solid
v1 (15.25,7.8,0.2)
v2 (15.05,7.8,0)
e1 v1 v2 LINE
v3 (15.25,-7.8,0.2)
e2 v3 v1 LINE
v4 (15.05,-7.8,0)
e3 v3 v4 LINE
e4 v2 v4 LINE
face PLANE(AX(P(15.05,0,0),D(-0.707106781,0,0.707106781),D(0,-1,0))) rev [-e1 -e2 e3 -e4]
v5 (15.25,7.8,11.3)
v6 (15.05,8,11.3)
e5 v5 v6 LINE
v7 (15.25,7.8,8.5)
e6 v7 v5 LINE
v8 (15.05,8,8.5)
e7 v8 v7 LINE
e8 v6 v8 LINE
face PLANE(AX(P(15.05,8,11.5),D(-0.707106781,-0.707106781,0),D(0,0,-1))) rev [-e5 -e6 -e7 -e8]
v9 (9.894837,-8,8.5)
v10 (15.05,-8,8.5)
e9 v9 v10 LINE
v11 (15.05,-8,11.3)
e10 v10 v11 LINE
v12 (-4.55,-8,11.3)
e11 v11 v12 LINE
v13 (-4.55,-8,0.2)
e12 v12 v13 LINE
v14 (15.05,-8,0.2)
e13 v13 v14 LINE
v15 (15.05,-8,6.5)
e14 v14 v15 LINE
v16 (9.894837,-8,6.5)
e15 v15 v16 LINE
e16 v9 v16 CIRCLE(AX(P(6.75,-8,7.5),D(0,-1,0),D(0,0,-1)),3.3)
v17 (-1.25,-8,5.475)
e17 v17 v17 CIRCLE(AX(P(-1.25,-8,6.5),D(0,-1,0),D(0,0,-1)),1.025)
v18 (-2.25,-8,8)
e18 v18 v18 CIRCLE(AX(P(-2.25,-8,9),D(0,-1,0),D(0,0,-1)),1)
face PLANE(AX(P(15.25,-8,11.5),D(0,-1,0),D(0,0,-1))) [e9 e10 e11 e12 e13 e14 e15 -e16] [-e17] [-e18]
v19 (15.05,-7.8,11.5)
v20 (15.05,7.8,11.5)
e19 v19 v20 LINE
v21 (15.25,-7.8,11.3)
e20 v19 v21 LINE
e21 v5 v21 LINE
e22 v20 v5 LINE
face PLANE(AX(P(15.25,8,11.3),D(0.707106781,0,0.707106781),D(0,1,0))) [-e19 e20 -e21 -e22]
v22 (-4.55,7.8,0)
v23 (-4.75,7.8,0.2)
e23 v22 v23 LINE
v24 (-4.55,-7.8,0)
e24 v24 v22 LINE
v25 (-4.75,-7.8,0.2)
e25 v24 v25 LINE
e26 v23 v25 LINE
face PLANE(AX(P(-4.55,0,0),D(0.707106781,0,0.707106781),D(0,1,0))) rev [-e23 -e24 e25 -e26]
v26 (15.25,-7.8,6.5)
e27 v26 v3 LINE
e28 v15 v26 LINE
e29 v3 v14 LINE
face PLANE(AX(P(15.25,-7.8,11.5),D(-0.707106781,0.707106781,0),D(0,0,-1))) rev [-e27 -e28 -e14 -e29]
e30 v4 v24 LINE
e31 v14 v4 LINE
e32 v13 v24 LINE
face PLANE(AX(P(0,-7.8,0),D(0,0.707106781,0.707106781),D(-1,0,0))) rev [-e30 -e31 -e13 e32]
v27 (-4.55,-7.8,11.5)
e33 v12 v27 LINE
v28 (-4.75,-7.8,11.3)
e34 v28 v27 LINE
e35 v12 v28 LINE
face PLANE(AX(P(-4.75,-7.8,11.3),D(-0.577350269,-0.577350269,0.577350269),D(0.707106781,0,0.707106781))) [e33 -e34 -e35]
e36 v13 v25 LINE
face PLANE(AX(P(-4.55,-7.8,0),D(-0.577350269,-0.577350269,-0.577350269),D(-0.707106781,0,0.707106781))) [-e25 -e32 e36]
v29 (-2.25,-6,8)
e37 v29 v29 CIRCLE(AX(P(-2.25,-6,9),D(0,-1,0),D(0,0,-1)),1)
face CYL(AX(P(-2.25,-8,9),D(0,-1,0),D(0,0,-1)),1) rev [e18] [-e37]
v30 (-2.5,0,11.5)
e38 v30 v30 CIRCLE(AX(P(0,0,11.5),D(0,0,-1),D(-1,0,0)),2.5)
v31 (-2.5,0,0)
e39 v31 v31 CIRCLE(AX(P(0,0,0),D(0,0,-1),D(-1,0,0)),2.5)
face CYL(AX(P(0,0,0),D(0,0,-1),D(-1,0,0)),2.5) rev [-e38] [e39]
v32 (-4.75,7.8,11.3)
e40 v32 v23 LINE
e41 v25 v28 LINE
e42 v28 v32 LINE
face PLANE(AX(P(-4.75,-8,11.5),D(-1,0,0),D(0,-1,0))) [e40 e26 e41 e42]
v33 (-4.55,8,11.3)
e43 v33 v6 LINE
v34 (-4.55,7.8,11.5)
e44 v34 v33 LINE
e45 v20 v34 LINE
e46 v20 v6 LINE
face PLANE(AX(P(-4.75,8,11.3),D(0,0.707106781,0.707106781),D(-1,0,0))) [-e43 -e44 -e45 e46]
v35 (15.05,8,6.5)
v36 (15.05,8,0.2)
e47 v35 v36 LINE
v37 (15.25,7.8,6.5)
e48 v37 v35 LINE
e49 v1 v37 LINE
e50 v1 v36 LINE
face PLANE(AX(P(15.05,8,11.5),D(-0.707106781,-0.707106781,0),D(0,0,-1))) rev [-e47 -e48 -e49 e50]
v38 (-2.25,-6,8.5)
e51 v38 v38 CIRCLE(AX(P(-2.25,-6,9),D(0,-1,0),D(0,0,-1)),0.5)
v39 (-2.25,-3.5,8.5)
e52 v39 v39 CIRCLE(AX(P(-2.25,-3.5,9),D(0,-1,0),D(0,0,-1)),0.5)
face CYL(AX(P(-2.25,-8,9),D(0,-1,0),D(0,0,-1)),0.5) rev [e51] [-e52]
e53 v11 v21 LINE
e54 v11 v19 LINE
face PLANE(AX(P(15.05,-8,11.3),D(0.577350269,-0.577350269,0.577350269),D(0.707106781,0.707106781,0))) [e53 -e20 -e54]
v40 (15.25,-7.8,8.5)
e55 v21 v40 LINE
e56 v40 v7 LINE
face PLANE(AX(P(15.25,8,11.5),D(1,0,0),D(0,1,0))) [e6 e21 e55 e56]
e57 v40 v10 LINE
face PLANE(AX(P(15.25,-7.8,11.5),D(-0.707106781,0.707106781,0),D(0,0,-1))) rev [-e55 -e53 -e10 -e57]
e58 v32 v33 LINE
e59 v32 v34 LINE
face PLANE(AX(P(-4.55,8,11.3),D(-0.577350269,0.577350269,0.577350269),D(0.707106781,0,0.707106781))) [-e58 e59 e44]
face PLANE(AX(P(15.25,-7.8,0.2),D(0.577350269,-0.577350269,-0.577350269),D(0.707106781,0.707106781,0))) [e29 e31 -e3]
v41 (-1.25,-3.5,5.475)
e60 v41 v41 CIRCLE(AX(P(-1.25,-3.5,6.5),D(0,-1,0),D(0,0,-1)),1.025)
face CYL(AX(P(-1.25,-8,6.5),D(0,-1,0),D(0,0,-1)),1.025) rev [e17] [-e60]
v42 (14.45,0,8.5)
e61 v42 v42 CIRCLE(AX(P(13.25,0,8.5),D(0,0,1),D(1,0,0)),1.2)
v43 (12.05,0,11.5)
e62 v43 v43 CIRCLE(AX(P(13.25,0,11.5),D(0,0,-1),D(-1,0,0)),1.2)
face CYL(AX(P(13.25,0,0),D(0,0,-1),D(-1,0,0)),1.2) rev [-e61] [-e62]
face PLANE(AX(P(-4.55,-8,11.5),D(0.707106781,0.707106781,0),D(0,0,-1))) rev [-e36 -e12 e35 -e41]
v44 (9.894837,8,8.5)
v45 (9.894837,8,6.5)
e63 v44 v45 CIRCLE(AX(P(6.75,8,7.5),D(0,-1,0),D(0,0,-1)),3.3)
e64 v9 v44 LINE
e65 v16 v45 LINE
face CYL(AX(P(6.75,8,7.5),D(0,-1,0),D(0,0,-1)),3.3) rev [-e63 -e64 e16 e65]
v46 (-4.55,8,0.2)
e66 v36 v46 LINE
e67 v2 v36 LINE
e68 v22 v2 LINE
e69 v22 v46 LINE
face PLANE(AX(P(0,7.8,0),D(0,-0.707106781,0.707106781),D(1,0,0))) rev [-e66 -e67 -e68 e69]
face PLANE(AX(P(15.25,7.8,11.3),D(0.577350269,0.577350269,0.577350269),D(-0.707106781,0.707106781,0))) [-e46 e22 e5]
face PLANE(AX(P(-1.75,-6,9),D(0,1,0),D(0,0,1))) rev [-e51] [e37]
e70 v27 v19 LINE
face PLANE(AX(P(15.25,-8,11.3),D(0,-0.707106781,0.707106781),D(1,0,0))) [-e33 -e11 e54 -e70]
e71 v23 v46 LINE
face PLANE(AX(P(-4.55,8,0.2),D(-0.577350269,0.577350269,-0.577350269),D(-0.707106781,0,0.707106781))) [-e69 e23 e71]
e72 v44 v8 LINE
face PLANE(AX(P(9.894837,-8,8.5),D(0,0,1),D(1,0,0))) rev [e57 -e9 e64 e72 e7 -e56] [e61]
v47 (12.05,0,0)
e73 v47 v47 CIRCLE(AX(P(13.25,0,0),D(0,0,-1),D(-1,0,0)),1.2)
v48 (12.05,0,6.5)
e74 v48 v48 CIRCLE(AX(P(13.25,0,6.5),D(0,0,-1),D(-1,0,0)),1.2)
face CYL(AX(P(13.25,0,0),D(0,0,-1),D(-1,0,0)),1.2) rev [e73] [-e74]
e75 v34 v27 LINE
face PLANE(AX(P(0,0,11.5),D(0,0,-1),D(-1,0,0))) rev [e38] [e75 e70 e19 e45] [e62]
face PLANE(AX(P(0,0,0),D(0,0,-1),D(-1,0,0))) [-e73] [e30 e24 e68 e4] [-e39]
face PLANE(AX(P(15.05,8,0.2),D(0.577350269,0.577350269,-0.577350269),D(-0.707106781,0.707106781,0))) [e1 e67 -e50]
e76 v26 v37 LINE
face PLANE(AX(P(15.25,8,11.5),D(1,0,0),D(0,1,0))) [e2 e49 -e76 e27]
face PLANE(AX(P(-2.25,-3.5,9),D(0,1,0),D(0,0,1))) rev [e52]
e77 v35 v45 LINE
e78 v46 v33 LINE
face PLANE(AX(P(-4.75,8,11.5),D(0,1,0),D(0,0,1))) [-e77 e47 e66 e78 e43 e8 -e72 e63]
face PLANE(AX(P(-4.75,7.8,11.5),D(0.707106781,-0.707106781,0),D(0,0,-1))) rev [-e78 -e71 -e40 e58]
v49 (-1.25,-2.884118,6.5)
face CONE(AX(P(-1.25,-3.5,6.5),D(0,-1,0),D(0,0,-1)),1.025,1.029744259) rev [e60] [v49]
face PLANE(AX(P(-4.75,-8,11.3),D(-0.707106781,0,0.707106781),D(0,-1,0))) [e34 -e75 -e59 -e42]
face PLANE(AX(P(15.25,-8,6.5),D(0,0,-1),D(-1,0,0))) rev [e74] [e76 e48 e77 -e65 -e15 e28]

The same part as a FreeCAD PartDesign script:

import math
import FreeCAD as App
import Part
import Sketcher

V = App.Vector
Q = App.Units.Quantity


def edges_at(feature, points):
    """Names of the edges that pass closest to the given points."""
    edges = feature.Shape.Edges
    near = lambda p: min(range(len(edges)), key=lambda i: edges[i].distToShape(Part.Vertex(*p))[0])
    return sorted({f"Edge{near(p) + 1}" for p in points})


def add_polygon(sketch, points):
    """Adds a closed chain of lines whose ends are joined by coincident constraints."""
    first, n = sketch.GeometryCount, len(points)
    for a, b in zip(points, points[1:] + points[:1]):
        sketch.addGeometry(Part.LineSegment(App.Vector(*a, 0), App.Vector(*b, 0)), False)
    for i in range(n):
        sketch.addConstraint(Sketcher.Constraint("Coincident", first + i, 2, first + (i + 1) % n, 1))

doc = App.newDocument("Part")
body = doc.addObject("PartDesign::Body", "Body")

# Sketch on XY plane
sketch1 = body.newObject("Sketcher::SketchObject", "Sketch")
sketch1.AttachmentSupport = (doc.getObject("XY_Plane"), [""])
sketch1.MapMode = "FlatFace"
add_polygon(sketch1, [(15, 8), (15, -8), (-5, -8), (-5, 8)])  # lines 0-3
sketch1.addConstraint([
    Sketcher.Constraint("Vertical", 0),
    Sketcher.Constraint("Horizontal", 1),
    Sketcher.Constraint("Vertical", 2),
    Sketcher.Constraint("Horizontal", 3),
    Sketcher.Constraint("DistanceX", 1, 2, 1, 1, Q("20 mm")),
    Sketcher.Constraint("DistanceY", 0, 2, 0, 1, Q("16 mm")),
    Sketcher.Constraint("DistanceY", 0, 2, -1, 1, Q("8 mm")),
    Sketcher.Constraint("DistanceX", -1, 1, 0, 2, Q("15.25 mm")),
])
pad1 = body.newObject("PartDesign::Pad", "Pad")
pad1.Profile = sketch1
pad1.Length = 11.5

# Sketch on XZ plane
sketch2 = body.newObject("Sketcher::SketchObject", "Sketch001")
sketch2.AttachmentSupport = (doc.getObject("XZ_Plane"), [""])
sketch2.MapMode = "FlatFace"
sketch2.AttachmentOffset = App.Placement(V(0, 0, -8), App.Rotation())
sketch2.addGeometry([
    Part.LineSegment(V(15.2, 8.5, 0), V(15.2, 6.5, 0)),
    Part.LineSegment(V(15.2, 6.5, 0), V(9.9, 6.5, 0)),
    Part.ArcOfCircle(Part.Circle(V(6.7, 7.5, 0), V(0, 0, 1), 3.3), math.radians(-18), math.radians(18)),
    Part.LineSegment(V(9.9, 8.5, 0), V(15.2, 8.5, 0)),
], False)
sketch2.addConstraint([
    Sketcher.Constraint("Coincident", 0, 2, 1, 1),
    Sketcher.Constraint("Coincident", 1, 2, 2, 1),
    Sketcher.Constraint("Coincident", 2, 2, 3, 1),
    Sketcher.Constraint("Coincident", 3, 2, 0, 1),
    Sketcher.Constraint("Vertical", 0),
    Sketcher.Constraint("Horizontal", 1),
    Sketcher.Constraint("Horizontal", 3),
    Sketcher.Constraint("Vertical", 1, 2, 2, 2),
    Sketcher.Constraint("Radius", 2, Q("3.3 mm")),
    Sketcher.Constraint("DistanceY", 0, 2, 0, 1, Q("2 mm")),
    Sketcher.Constraint("DistanceY", -1, 1, 2, 3, Q("7.5 mm")),
    Sketcher.Constraint("DistanceX", 2, 3, 0, 2, Q("8.5 mm")),
    Sketcher.Constraint("DistanceX", -1, 1, 2, 3, Q("6.75 mm")),
])
pocket1 = body.newObject("PartDesign::Pocket", "Pocket")
pocket1.Profile = sketch2
pocket1.Type = "ThroughAll"
pocket1.Reversed = True

# Sketch on XY plane
sketch3 = body.newObject("Sketcher::SketchObject", "Sketch002")
sketch3.AttachmentSupport = (doc.getObject("XY_Plane"), [""])
sketch3.MapMode = "FlatFace"
sketch3.AttachmentOffset = App.Placement(V(0, 0, 7.5), App.Rotation())
add_polygon(sketch3, [(6.8, 8), (6.8, -8), (10.1, -8), (10.1, 8)])  # lines 0-3
sketch3.addGeometry(Part.LineSegment(V(6.8, 8, 0), V(6.8, -8, 0)), True)  # axis
sketch3.addConstraint([
    Sketcher.Constraint("Vertical", 0),
    Sketcher.Constraint("Horizontal", 1),
    Sketcher.Constraint("Vertical", 2),
    Sketcher.Constraint("Horizontal", 3),
    Sketcher.Constraint("Vertical", 4),
    Sketcher.Constraint("Coincident", 4, 1, 3, 2),
    Sketcher.Constraint("Horizontal", 1, 2, 4, 2),
    Sketcher.Constraint("DistanceY", 0, 2, 0, 1, Q("16 mm")),
    Sketcher.Constraint("DistanceX", 1, 1, 1, 2, Q("3.3 mm")),
    Sketcher.Constraint("DistanceY", 0, 2, -1, 1, Q("8 mm")),
    Sketcher.Constraint("DistanceX", -1, 1, 0, 2, Q("6.75 mm")),
])
groove = body.newObject("PartDesign::Groove", "Groove")
groove.Profile = sketch3
groove.ReferenceAxis = (sketch3, ["Axis0"])
groove.Angle = 360

# Sketch on XY plane
sketch4 = body.newObject("Sketcher::SketchObject", "Sketch003")
sketch4.AttachmentSupport = (doc.getObject("XY_Plane"), [""])
sketch4.MapMode = "FlatFace"
sketch4.addGeometry(Part.Circle(V(0, 0, 0), V(0, 0, 1), 2.5), False)
sketch4.addConstraint([
    Sketcher.Constraint("Coincident", 0, 3, -1, 1),
    Sketcher.Constraint("Diameter", 0, Q("5 mm")),
])
doc.recompute()
hole = body.newObject("PartDesign::Hole", "Hole")
hole.Profile = sketch4
hole.ThreadType = "None"
hole.Diameter = 5
hole.DepthType = "ThroughAll"
hole.Reversed = True

# Sketch on YZ plane
sketch5 = body.newObject("Sketcher::SketchObject", "Sketch004")
sketch5.AttachmentSupport = (doc.getObject("YZ_Plane"), [""])
sketch5.MapMode = "FlatFace"
sketch5.AttachmentOffset = App.Placement(V(0, 0, 13.25), App.Rotation())
add_polygon(sketch5, [(0, 11.5), (0, 8.5), (0.8, 8.5), (0.8, 11.5)])  # lines 0-3
sketch5.addConstraint([
    Sketcher.Constraint("Vertical", 0),
    Sketcher.Constraint("Horizontal", 1),
    Sketcher.Constraint("Vertical", 2),
    Sketcher.Constraint("Horizontal", 3),
    Sketcher.Constraint("PointOnObject", 0, 2, -2),
    Sketcher.Constraint("DistanceY", 0, 2, 0, 1, Q("3 mm")),
    Sketcher.Constraint("DistanceX", 1, 1, 1, 2, Q("0.8 mm")),
    Sketcher.Constraint("DistanceY", -1, 1, 0, 2, Q("8.5 mm")),
])
groove2 = body.newObject("PartDesign::Groove", "Groove001")
groove2.Profile = sketch5
groove2.ReferenceAxis = (sketch5, ["V_Axis"])
groove2.Angle = 360

# Sketch on XY plane
sketch6 = body.newObject("Sketcher::SketchObject", "Sketch005")
sketch6.AttachmentSupport = (doc.getObject("XY_Plane"), [""])
sketch6.MapMode = "FlatFace"
sketch6.addGeometry(Part.Circle(V(13.2, 0, 0), V(0, 0, 1), 1.2), False)
sketch6.addConstraint([
    Sketcher.Constraint("PointOnObject", 0, 3, -1),
    Sketcher.Constraint("Diameter", 0, Q("2.4 mm")),
    Sketcher.Constraint("DistanceX", -1, 1, 0, 3, Q("13.25 mm")),
])
doc.recompute()
hole2 = body.newObject("PartDesign::Hole", "Hole001")
hole2.Profile = sketch6
hole2.ThreadType = "None"
hole2.Diameter = 2.4
hole2.DepthType = "Dimension"
hole2.Depth = 11.5
hole2.DrillPoint = "Flat"
hole2.Reversed = True

# Sketch on XZ plane
sketch7 = body.newObject("Sketcher::SketchObject", "Sketch006")
sketch7.AttachmentSupport = (doc.getObject("XZ_Plane"), [""])
sketch7.MapMode = "FlatFace"
sketch7.AttachmentOffset = App.Placement(V(0, 0, 8), App.Rotation())
sketch7.addGeometry(Part.Circle(V(-1.2, 6.5, 0), V(0, 0, 1), 1), False)
sketch7.addConstraint([
    Sketcher.Constraint("Diameter", 0, Q("2.05 mm")),
    Sketcher.Constraint("DistanceY", -1, 1, 0, 3, Q("6.5 mm")),
    Sketcher.Constraint("DistanceX", 0, 3, -1, 1, Q("1.25 mm")),
])
doc.recompute()
hole3 = body.newObject("PartDesign::Hole", "Hole002")
hole3.Profile = sketch7
hole3.ThreadType = "None"
hole3.Diameter = 2.05
hole3.DepthType = "Dimension"
hole3.Depth = 4.5
hole3.DrillPoint = "Angled"
hole3.DrillPointAngle = 118

# Sketch on XZ plane
sketch8 = body.newObject("Sketcher::SketchObject", "Sketch007")
sketch8.AttachmentSupport = (doc.getObject("XZ_Plane"), [""])
sketch8.MapMode = "FlatFace"
sketch8.AttachmentOffset = App.Placement(V(0, 0, 8), App.Rotation())
sketch8.addGeometry(Part.Circle(V(-2.2, 9, 0), V(0, 0, 1), 0.5), False)
sketch8.addConstraint([
    Sketcher.Constraint("Diameter", 0, Q("1 mm")),
    Sketcher.Constraint("DistanceY", -1, 1, 0, 3, Q("9 mm")),
    Sketcher.Constraint("DistanceX", 0, 3, -1, 1, Q("2.25 mm")),
])
doc.recompute()
hole4 = body.newObject("PartDesign::Hole", "Hole003")
hole4.Profile = sketch8
hole4.ThreadType = "None"
hole4.Diameter = 1
hole4.DepthType = "Dimension"
hole4.Depth = 4.5
hole4.DrillPoint = "Flat"
hole4.HoleCutType = "Counterbore"
hole4.HoleCutDiameter = 2
hole4.HoleCutDepth = 2
doc.recompute()

chamfer = body.newObject("PartDesign::Chamfer", "Chamfer")
chamfer.Base = (hole4, edges_at(hole4, [
    (-4.75, 0, 11.5),
    (5.25, 8, 11.5),
    (15.25, -8, 3.25),
    (15.25, 8, 3.25),
    (15.25, 0, 11.5),
    (5.25, 8, 0),
    (-4.75, 0, 0),
    (5.25, -8, 0),
    (15.25, 0, 0),
    (5.25, -8, 11.5),
    (15.25, 8, 10),
    (-4.75, 8, 5.75),
    (-4.75, -8, 5.75),
    (15.25, -8, 10),
]))
chamfer.Size = 0.2

doc.recompute()
